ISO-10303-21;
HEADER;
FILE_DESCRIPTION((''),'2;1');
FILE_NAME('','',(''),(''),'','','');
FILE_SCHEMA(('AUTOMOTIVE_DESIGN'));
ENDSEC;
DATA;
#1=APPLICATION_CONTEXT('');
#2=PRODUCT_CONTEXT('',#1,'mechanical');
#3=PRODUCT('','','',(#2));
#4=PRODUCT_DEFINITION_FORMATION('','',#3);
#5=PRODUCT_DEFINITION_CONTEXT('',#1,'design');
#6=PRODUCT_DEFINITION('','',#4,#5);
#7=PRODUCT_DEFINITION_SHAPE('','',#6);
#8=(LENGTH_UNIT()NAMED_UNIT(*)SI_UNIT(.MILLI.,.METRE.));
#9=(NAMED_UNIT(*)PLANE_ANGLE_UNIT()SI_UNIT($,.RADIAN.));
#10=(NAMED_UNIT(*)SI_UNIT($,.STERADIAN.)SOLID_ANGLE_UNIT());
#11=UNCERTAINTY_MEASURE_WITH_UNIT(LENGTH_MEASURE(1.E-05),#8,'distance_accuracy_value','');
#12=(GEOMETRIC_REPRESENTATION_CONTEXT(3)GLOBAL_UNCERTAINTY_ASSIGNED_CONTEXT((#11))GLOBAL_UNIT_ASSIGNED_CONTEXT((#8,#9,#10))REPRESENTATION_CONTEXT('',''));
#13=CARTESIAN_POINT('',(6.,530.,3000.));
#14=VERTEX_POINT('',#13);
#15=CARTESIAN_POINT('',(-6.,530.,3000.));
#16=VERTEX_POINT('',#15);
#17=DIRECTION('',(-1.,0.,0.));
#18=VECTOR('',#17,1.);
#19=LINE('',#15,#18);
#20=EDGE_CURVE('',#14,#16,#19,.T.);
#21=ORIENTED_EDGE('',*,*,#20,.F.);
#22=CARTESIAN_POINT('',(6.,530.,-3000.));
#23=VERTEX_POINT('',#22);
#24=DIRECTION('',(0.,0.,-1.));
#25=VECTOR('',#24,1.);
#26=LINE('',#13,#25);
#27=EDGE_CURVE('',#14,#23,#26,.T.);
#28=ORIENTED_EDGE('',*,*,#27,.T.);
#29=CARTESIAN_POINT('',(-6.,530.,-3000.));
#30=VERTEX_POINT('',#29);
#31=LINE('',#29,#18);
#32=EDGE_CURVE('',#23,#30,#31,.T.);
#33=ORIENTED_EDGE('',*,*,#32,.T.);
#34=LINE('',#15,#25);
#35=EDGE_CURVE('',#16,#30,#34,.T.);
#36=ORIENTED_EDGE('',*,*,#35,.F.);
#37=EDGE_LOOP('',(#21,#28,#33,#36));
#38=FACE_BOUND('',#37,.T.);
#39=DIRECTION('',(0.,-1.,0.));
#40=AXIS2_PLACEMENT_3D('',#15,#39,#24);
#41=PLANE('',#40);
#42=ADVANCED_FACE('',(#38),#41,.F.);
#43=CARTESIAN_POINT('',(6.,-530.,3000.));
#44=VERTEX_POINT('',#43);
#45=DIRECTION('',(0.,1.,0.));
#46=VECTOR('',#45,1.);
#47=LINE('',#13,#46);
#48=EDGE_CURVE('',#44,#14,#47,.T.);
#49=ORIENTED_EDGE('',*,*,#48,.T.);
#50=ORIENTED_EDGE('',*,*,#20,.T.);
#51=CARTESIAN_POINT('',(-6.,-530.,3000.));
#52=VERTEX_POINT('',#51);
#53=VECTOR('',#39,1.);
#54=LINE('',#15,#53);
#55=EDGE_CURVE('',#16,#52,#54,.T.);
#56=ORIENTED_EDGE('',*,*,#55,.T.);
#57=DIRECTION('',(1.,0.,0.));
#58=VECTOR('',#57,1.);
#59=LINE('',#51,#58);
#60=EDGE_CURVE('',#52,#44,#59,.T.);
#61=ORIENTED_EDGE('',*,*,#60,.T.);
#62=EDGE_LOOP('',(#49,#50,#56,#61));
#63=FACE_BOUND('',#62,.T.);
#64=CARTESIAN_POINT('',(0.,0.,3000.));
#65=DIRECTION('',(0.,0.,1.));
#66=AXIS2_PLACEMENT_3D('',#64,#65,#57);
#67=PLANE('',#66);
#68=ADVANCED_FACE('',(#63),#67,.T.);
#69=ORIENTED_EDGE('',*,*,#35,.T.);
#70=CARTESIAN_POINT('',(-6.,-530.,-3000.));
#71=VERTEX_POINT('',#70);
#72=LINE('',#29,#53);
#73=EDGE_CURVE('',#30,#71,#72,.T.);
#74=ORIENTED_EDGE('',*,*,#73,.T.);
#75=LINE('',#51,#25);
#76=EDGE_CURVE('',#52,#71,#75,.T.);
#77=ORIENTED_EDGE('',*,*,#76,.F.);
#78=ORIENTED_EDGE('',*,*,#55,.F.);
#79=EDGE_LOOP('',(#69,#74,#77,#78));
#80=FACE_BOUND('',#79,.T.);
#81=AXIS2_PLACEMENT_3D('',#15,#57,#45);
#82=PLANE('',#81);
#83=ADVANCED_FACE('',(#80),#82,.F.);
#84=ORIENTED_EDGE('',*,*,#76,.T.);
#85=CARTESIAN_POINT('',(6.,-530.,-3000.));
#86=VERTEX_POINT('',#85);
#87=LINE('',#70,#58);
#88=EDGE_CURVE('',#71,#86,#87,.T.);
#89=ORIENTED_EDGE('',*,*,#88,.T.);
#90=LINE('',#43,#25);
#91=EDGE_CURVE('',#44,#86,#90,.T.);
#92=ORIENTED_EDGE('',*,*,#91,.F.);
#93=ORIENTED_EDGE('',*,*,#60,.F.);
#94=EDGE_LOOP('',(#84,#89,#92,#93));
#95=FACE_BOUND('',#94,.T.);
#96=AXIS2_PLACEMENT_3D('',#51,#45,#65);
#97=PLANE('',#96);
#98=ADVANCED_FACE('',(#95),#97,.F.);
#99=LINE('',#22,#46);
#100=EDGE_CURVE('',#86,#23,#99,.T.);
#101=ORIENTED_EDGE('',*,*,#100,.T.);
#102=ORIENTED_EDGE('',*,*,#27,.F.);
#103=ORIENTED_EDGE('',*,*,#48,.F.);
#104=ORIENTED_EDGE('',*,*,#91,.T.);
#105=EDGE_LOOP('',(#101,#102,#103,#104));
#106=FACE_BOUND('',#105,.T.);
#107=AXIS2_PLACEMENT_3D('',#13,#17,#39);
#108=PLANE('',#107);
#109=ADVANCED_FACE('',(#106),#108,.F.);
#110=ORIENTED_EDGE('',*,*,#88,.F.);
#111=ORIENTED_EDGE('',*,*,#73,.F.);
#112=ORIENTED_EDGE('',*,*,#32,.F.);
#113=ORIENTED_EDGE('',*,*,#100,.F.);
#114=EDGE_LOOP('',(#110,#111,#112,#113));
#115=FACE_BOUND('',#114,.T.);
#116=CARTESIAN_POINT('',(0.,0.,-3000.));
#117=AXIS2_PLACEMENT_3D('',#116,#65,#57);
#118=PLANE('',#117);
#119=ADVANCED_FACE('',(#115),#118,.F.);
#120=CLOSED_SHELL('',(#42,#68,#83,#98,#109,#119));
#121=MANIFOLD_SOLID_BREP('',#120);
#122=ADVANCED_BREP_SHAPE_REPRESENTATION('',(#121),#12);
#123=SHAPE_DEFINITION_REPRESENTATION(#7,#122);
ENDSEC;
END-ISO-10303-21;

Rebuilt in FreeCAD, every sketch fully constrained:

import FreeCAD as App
import Part
import Sketcher

V = App.Vector
Q = App.Units.Quantity

doc = App.newDocument("Part")
params = doc.addObject("Spreadsheet::Sheet", "Params")
for row, (alias, value) in enumerate([
    ("sketch1_width", "12 mm"),
    ("sketch1_height", "1060 mm"),
    ("pad1_length", "6000 mm"),
], start=1):
    params.set(f"A{row}", alias)
    params.set(f"B{row}", "=" + value)
    params.setAlias(f"B{row}", alias)

body = doc.addObject("PartDesign::Body", "Body")

sketch1 = body.newObject("Sketcher::SketchObject", "Sketch")
sketch1.AttachmentSupport = (doc.getObject("XY_Plane"), [""])
sketch1.MapMode = "FlatFace"
sketch1.addGeometry([
    Part.LineSegment(V(-6, 530, 0), V(-6, -530, 0)),
    Part.LineSegment(V(-6, -530, 0), V(6, -530, 0)),
    Part.LineSegment(V(6, -530, 0), V(6, 530, 0)),
    Part.LineSegment(V(6, 530, 0), V(-6, 530, 0)),
], False)
sketch1.addConstraint([
    Sketcher.Constraint("Coincident", 0, 2, 1, 1),
    Sketcher.Constraint("Coincident", 1, 2, 2, 1),
    Sketcher.Constraint("Coincident", 2, 2, 3, 1),
    Sketcher.Constraint("Coincident", 3, 2, 0, 1),
    Sketcher.Constraint("Vertical", 0),
    Sketcher.Constraint("Horizontal", 1),
    Sketcher.Constraint("Vertical", 2),
    Sketcher.Constraint("Horizontal", 3),
    Sketcher.Constraint("Symmetric", 0, 2, 2, 2, -1, 1),
    Sketcher.Constraint("DistanceX", 1, 1, 1, 2, Q("12 mm")),
    Sketcher.Constraint("DistanceY", 0, 2, 0, 1, Q("1060 mm")),
])
sketch1.setExpression("Constraints[9]", "Params.sketch1_width")
sketch1.setExpression("Constraints[10]", "Params.sketch1_height")
pad1 = body.newObject("PartDesign::Pad", "Pad")
pad1.Profile = sketch1
pad1.setExpression("Length", "Params.pad1_length")
pad1.Midplane = True

doc.recompute()
